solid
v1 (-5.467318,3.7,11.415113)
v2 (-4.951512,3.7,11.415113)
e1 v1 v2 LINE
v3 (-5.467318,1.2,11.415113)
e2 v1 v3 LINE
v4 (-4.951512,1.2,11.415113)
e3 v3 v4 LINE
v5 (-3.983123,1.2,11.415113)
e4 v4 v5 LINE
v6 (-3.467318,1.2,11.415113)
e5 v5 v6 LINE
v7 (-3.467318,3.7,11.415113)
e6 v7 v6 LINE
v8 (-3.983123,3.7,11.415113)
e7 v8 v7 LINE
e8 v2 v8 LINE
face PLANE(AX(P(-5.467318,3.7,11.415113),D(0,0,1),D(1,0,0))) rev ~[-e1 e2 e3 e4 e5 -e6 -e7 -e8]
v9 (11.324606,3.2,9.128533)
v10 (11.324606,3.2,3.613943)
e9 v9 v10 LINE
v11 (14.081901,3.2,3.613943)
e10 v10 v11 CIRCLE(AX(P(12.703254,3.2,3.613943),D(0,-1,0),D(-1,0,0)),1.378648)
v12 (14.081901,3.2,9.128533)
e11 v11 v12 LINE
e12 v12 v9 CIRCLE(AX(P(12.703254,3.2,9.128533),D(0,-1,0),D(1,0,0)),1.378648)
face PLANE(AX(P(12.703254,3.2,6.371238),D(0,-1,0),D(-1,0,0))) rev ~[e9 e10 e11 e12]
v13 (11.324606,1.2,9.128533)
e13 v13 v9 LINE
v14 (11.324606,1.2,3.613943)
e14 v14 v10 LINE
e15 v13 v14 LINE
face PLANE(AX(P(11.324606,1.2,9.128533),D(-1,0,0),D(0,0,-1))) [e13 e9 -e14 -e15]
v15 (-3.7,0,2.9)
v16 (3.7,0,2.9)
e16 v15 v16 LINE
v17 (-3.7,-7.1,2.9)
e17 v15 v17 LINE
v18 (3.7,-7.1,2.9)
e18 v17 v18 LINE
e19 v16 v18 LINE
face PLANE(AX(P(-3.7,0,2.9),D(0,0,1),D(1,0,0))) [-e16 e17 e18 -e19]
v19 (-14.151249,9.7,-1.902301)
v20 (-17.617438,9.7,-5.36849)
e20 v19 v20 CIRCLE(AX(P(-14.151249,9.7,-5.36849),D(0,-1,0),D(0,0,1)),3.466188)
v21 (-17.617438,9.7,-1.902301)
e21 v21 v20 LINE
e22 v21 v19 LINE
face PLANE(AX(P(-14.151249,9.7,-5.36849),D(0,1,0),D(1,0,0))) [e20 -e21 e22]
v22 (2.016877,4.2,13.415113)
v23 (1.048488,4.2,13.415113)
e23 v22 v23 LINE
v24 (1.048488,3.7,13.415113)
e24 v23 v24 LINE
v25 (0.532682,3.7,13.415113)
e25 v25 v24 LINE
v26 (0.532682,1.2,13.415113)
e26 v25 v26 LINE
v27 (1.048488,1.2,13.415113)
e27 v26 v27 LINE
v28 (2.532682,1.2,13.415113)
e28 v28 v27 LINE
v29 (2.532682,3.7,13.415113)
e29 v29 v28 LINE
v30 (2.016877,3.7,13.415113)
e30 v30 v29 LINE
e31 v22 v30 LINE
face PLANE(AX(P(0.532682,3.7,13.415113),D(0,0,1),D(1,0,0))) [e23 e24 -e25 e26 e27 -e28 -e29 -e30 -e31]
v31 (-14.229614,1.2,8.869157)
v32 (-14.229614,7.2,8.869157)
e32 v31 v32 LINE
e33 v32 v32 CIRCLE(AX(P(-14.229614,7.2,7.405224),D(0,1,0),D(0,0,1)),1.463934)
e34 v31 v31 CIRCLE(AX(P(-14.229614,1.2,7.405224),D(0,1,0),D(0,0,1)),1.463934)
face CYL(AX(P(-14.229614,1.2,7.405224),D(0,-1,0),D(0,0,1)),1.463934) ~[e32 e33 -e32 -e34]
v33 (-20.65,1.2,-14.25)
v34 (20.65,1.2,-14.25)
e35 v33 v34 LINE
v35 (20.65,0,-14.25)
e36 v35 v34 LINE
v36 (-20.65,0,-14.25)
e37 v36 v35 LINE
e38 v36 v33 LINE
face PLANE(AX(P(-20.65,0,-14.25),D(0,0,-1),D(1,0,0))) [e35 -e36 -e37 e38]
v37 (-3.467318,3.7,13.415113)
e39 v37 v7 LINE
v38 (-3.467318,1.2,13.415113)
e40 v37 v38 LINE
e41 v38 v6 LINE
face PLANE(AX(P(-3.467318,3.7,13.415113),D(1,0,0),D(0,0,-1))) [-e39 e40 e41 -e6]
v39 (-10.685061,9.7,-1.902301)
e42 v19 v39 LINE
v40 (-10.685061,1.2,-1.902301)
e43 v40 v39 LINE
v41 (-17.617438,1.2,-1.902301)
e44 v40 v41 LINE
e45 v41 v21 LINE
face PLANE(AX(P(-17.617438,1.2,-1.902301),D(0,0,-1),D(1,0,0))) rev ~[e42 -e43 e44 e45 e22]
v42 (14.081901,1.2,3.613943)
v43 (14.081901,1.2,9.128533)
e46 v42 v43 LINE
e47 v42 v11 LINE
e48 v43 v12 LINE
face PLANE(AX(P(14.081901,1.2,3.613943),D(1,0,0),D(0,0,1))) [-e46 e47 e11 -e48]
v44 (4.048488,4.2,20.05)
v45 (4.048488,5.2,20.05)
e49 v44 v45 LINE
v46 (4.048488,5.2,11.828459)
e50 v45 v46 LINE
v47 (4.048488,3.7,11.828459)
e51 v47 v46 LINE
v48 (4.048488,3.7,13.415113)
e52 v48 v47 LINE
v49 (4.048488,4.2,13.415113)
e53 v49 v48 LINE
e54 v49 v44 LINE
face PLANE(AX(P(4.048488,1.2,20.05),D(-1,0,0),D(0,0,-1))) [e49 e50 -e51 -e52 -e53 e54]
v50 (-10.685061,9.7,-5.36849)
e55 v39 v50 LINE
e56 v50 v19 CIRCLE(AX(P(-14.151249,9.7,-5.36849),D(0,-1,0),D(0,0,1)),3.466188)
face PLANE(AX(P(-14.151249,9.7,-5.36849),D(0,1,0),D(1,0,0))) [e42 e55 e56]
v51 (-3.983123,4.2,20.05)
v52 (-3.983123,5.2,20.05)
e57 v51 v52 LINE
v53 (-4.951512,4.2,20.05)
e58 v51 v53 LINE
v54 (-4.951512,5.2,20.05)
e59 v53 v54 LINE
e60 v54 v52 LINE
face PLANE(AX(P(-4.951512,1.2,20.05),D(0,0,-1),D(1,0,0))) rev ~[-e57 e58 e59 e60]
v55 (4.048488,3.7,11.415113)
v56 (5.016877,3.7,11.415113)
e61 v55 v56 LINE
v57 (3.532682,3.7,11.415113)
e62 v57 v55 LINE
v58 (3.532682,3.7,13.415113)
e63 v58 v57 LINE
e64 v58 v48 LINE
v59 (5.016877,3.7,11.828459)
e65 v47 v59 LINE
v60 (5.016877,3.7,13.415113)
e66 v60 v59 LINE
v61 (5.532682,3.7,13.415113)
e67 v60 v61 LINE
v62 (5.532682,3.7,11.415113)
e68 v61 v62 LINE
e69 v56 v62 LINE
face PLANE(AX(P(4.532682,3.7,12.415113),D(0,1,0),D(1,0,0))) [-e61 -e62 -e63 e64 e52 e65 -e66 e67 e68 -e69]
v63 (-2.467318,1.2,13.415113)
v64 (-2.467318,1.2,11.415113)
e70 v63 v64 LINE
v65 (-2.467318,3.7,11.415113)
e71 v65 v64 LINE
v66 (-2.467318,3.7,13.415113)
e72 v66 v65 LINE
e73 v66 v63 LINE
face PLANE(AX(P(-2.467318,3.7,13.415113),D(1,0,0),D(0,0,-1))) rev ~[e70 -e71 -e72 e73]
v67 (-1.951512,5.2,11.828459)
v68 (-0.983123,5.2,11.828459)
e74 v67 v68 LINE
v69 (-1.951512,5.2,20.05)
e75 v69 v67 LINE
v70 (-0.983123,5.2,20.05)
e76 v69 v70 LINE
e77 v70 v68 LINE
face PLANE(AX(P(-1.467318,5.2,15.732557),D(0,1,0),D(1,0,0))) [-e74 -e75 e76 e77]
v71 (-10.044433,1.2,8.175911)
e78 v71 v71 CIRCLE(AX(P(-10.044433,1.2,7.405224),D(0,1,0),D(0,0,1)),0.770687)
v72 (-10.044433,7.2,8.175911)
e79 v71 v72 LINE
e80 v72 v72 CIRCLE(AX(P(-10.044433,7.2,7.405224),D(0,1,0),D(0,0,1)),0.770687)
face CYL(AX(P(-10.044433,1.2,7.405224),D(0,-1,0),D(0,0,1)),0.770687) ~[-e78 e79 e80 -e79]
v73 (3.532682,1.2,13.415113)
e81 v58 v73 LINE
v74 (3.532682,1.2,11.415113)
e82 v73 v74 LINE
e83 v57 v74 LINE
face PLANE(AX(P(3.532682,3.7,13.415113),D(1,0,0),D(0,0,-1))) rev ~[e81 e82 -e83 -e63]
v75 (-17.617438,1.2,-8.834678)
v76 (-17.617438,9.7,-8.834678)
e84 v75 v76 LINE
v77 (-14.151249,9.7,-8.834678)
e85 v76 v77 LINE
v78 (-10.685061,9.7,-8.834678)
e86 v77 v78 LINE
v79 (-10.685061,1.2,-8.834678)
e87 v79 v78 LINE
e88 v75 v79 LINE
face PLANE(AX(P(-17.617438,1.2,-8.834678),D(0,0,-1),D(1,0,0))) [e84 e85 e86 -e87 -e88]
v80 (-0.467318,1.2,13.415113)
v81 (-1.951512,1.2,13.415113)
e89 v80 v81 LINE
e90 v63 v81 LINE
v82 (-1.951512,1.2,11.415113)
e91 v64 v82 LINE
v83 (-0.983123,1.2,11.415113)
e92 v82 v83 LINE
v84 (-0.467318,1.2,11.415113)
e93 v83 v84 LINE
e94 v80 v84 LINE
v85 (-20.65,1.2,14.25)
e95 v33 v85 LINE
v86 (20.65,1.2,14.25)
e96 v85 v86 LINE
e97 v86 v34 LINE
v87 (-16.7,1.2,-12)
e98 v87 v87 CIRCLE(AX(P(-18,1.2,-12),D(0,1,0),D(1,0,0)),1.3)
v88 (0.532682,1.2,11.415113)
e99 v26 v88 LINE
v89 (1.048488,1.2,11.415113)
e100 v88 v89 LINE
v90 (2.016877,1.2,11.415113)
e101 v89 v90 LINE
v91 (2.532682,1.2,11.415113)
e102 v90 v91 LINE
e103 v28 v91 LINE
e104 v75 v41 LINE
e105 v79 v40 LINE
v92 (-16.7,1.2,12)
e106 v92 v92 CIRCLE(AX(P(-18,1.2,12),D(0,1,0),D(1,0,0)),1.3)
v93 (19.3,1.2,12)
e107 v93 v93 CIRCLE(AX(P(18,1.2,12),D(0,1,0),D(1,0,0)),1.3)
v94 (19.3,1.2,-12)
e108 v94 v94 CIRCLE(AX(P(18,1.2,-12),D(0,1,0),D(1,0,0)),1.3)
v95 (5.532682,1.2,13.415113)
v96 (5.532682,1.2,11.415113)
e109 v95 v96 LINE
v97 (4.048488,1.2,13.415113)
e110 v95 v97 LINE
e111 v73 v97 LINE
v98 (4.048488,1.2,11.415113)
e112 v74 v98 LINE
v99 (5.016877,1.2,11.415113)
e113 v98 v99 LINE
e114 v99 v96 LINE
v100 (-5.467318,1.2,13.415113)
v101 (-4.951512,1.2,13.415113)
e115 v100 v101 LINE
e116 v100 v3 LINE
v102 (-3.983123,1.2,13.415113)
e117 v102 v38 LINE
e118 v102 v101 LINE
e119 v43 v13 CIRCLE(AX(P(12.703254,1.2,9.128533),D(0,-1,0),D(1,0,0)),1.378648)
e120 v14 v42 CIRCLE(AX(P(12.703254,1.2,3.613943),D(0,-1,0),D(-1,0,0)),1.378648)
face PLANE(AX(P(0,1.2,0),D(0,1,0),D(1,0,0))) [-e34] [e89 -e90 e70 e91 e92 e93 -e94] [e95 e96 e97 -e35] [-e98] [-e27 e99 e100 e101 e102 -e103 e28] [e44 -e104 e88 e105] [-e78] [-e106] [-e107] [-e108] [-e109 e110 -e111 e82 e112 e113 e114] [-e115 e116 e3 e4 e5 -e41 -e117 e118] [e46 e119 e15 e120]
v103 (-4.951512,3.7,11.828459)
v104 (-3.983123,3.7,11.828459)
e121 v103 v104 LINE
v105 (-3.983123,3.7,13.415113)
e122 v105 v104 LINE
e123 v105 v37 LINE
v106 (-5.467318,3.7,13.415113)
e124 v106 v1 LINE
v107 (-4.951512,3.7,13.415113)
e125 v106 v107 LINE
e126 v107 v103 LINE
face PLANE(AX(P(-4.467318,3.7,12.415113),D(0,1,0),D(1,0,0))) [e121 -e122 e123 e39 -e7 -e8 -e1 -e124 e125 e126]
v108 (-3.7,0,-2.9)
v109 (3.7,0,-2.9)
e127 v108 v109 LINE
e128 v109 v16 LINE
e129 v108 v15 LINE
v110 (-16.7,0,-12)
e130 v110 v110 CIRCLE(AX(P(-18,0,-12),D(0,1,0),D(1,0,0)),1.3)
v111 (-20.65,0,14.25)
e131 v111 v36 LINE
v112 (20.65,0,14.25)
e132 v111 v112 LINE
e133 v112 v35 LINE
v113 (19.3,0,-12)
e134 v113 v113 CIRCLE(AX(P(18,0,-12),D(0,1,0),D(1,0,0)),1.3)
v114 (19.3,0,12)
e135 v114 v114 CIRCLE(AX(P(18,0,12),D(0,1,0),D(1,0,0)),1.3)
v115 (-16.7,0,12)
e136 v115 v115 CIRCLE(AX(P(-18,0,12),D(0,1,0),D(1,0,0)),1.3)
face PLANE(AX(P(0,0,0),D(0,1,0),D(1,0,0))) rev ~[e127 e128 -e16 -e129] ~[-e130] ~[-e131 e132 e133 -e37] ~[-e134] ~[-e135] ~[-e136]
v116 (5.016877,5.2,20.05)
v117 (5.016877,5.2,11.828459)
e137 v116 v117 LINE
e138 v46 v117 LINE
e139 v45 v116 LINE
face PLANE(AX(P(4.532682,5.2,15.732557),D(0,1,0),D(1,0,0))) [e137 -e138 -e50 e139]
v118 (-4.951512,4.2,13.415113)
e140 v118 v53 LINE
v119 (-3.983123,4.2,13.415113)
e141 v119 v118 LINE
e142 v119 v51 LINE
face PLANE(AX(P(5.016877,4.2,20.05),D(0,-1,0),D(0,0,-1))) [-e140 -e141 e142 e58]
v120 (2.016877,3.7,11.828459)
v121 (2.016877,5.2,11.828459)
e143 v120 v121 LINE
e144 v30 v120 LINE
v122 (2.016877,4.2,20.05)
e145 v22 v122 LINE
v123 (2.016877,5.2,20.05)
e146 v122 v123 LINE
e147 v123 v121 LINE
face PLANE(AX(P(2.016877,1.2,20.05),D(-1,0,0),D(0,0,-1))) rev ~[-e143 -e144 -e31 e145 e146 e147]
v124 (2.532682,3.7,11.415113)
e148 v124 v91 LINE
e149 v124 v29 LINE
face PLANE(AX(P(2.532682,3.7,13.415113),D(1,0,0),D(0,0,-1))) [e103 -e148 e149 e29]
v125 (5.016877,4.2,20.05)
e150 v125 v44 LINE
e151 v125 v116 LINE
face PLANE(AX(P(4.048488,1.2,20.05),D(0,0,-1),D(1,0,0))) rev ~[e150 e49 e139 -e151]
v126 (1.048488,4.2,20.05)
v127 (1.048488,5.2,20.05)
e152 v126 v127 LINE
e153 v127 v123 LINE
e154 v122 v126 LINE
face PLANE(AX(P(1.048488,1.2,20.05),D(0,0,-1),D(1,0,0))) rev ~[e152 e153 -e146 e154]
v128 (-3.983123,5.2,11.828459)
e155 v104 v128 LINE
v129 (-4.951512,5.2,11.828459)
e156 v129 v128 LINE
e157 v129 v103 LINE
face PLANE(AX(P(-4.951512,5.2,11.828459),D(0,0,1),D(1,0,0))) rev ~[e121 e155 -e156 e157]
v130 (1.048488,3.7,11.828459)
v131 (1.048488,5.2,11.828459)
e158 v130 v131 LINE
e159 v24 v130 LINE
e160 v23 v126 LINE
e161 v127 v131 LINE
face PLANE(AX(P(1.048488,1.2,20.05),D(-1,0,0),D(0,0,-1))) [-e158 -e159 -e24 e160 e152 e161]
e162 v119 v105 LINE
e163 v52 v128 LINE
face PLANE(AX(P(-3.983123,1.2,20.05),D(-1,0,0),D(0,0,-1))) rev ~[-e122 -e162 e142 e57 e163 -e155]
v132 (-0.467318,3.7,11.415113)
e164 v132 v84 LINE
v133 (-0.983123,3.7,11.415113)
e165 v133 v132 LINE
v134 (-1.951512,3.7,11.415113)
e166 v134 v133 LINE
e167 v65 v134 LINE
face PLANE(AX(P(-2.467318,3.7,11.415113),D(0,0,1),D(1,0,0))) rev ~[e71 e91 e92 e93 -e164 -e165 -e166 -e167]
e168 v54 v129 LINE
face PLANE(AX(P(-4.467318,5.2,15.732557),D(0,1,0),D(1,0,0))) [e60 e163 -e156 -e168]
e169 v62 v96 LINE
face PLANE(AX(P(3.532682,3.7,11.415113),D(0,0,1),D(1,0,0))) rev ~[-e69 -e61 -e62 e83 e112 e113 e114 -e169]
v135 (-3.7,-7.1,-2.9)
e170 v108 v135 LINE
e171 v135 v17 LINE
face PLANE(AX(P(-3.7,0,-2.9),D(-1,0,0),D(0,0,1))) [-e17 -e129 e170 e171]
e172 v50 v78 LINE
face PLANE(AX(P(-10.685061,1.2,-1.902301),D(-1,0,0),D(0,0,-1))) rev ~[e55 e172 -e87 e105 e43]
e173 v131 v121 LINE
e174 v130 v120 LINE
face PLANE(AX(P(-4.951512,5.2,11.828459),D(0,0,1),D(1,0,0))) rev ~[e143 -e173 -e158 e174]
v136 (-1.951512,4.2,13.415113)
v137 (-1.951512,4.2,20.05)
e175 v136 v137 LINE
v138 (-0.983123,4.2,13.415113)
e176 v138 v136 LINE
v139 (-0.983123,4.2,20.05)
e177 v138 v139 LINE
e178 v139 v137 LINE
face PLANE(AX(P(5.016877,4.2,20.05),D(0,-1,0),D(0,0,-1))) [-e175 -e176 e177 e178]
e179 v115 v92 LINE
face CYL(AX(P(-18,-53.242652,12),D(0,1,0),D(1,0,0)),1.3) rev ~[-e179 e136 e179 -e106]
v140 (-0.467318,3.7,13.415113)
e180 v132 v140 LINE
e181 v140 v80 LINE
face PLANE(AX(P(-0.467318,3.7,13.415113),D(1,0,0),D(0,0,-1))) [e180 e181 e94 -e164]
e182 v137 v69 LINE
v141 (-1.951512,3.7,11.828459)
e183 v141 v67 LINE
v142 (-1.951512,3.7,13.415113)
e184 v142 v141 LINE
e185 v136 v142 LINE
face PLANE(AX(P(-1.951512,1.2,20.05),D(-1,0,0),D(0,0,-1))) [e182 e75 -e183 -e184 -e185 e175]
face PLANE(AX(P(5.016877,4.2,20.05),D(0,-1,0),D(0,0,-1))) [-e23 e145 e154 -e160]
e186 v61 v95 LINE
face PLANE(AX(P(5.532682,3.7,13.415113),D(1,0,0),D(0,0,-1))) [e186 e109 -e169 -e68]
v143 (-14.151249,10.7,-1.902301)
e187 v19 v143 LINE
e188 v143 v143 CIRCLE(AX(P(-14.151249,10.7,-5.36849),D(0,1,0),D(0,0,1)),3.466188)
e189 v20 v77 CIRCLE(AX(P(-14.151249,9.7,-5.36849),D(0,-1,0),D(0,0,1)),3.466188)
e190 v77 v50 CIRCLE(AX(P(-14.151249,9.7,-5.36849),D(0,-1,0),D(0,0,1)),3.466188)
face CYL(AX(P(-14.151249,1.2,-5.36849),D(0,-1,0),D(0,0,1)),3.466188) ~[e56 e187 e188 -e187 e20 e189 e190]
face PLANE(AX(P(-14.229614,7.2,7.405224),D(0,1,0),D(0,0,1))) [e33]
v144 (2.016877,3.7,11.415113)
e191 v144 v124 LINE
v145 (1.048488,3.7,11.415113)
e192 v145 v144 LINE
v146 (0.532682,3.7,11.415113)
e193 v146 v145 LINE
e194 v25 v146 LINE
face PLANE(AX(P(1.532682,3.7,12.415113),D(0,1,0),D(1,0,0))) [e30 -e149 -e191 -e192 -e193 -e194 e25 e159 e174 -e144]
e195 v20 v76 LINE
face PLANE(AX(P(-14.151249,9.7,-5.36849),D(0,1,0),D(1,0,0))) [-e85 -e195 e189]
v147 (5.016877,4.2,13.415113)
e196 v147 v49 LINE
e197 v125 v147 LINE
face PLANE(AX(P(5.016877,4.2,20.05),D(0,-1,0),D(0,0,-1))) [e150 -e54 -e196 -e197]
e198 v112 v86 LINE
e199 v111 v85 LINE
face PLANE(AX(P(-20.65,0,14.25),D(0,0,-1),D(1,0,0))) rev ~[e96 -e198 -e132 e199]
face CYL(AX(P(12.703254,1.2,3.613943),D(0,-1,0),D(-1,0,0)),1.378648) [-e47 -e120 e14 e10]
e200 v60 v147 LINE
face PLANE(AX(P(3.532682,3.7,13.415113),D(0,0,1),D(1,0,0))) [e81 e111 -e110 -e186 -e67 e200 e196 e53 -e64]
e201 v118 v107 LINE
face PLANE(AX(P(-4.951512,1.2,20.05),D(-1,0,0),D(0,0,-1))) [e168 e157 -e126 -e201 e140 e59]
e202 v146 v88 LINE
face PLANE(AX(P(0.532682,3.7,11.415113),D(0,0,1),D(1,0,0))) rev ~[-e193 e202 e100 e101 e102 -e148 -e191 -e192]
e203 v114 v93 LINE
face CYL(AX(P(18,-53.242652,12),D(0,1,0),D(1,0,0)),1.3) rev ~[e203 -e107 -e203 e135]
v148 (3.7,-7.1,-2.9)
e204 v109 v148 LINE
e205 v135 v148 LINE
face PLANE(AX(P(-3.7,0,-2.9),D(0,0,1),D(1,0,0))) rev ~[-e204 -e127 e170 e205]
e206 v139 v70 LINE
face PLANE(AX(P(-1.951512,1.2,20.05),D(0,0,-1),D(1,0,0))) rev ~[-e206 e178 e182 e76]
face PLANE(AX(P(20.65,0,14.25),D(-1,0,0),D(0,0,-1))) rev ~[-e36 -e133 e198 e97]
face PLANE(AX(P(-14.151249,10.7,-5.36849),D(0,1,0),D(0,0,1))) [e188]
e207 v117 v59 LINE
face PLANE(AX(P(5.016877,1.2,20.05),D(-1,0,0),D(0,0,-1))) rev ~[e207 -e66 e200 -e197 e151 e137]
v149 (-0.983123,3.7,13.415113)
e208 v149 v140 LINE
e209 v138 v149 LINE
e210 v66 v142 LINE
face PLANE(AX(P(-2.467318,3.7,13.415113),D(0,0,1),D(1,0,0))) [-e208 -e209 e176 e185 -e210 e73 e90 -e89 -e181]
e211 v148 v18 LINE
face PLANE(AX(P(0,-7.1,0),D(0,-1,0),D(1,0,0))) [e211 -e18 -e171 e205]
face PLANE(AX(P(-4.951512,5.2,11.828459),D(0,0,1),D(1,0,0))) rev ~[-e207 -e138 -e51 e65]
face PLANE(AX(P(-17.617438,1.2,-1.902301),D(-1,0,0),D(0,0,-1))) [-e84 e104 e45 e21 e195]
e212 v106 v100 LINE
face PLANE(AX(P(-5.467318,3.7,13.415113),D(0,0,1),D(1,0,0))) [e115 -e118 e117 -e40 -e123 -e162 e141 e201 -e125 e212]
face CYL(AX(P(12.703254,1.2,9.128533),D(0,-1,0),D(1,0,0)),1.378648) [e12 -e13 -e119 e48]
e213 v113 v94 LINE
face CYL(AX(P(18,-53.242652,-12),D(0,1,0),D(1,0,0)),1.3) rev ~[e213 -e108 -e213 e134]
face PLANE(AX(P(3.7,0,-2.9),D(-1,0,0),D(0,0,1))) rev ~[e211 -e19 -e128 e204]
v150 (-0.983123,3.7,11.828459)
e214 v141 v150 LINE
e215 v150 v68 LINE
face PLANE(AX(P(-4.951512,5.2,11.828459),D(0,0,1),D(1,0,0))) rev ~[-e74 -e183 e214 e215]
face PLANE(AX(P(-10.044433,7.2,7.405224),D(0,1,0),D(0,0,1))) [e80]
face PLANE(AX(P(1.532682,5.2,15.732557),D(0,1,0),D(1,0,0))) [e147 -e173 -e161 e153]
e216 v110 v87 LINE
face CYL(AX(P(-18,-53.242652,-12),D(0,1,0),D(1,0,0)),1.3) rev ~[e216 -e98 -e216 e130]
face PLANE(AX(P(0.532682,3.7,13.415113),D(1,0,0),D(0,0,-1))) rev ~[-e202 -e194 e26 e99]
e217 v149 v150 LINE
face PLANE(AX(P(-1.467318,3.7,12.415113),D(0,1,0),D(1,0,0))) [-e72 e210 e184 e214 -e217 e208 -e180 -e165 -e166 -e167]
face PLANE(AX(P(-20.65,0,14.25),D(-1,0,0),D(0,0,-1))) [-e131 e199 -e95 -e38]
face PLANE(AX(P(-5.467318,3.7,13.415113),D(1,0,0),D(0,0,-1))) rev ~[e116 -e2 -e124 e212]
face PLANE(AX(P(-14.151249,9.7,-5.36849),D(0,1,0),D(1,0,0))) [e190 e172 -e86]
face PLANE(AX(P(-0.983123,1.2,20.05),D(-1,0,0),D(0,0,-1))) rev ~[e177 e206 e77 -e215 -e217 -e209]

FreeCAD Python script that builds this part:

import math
import FreeCAD as App
import Part
import Sketcher

V = App.Vector
Q = App.Units.Quantity

doc = App.newDocument("Part")
body = doc.addObject("PartDesign::Body", "Body")

# Sketch on XZ plane
sketch1 = doc.addObject("Sketcher::SketchObject", "Sketch")
body.addObject(sketch1)
sketch1.AttachmentSupport = (doc.XZ_Plane, [""])
sketch1.MapMode = "FlatFace"
sketch1.addGeometry(Part.LineSegment(V(-21, -14, 0), V(-21, 14, 0)), False)
sketch1.addGeometry(Part.LineSegment(V(-21, 14, 0), V(21, 14, 0)), False)
sketch1.addGeometry(Part.LineSegment(V(21, 14, 0), V(21, -14, 0)), False)
sketch1.addGeometry(Part.LineSegment(V(21, -14, 0), V(-21, -14, 0)), False)
sketch1.addConstraint(Sketcher.Constraint("Coincident", 0, 2, 1, 1))
sketch1.addConstraint(Sketcher.Constraint("Coincident", 1, 2, 2, 1))
sketch1.addConstraint(Sketcher.Constraint("Coincident", 2, 2, 3, 1))
sketch1.addConstraint(Sketcher.Constraint("Coincident", 3, 2, 0, 1))
sketch1.addConstraint(Sketcher.Constraint("Vertical", 0))
sketch1.addConstraint(Sketcher.Constraint("Horizontal", 1))
sketch1.addConstraint(Sketcher.Constraint("Vertical", 2))
sketch1.addConstraint(Sketcher.Constraint("Horizontal", 3))
sketch1.addConstraint(Sketcher.Constraint("Symmetric", 0, 2, 2, 2, -1, 1))
sketch1.addConstraint(Sketcher.Constraint("DistanceX", 1, 1, 1, 2, Q("41.3 mm")))
sketch1.addConstraint(Sketcher.Constraint("DistanceY", 0, 1, 0, 2, Q("28.5 mm")))
pad1 = doc.addObject("PartDesign::Pad", "Pad")
body.addObject(pad1)
pad1.Profile = sketch1
pad1.Length = 1.2
pad1.Reversed = True

# Sketch on XZ plane
sketch2 = doc.addObject("Sketcher::SketchObject", "Sketch001")
body.addObject(sketch2)
sketch2.AttachmentSupport = (doc.XZ_Plane, [""])
sketch2.MapMode = "FlatFace"
sketch2.AttachmentOffset = App.Placement(V(0, 0, -1.2), App.Rotation())
sketch2.addGeometry(Part.Circle(V(-14.2, -5.4, 0), V(0, 0, 1), 3.5), False)
sketch2.addConstraint(Sketcher.Constraint("Diameter", 0, Q("6.932377 mm")))
sketch2.addConstraint(Sketcher.Constraint("DistanceX", 0, 3, -1, 1, Q("14.151249 mm")))
sketch2.addConstraint(Sketcher.Constraint("DistanceY", 0, 3, -1, 1, Q("5.36849 mm")))
pad2 = doc.addObject("PartDesign::Pad", "Pad001")
body.addObject(pad2)
pad2.Profile = sketch2
pad2.Length = 9.5
pad2.Reversed = True

# Sketch on XZ plane
sketch3 = doc.addObject("Sketcher::SketchObject", "Sketch002")
body.addObject(sketch3)
sketch3.AttachmentSupport = (doc.XZ_Plane, [""])
sketch3.MapMode = "FlatFace"
sketch3.addGeometry(Part.LineSegment(V(-4, 3, 0), V(-4, -3, 0)), False)
sketch3.addGeometry(Part.LineSegment(V(-4, -3, 0), V(4, -3, 0)), False)
sketch3.addGeometry(Part.LineSegment(V(4, -3, 0), V(4, 3, 0)), False)
sketch3.addGeometry(Part.LineSegment(V(4, 3, 0), V(-4, 3, 0)), False)
sketch3.addConstraint(Sketcher.Constraint("Coincident", 0, 2, 1, 1))
sketch3.addConstraint(Sketcher.Constraint("Coincident", 1, 2, 2, 1))
sketch3.addConstraint(Sketcher.Constraint("Coincident", 2, 2, 3, 1))
sketch3.addConstraint(Sketcher.Constraint("Coincident", 3, 2, 0, 1))
sketch3.addConstraint(Sketcher.Constraint("Vertical", 0))
sketch3.addConstraint(Sketcher.Constraint("Horizontal", 1))
sketch3.addConstraint(Sketcher.Constraint("Vertical", 2))
sketch3.addConstraint(Sketcher.Constraint("Horizontal", 3))
sketch3.addConstraint(Sketcher.Constraint("Symmetric", 0, 2, 2, 2, -1, 1))
sketch3.addConstraint(Sketcher.Constraint("DistanceX", 1, 1, 1, 2, Q("7.4 mm")))
sketch3.addConstraint(Sketcher.Constraint("DistanceY", 0, 2, 0, 1, Q("5.8 mm")))
pad3 = doc.addObject("PartDesign::Pad", "Pad002")
body.addObject(pad3)
pad3.Profile = sketch3
pad3.Length = 7.1

# Sketch on XZ plane
sketch4 = doc.addObject("Sketcher::SketchObject", "Sketch003")
body.addObject(sketch4)
sketch4.AttachmentSupport = (doc.XZ_Plane, [""])
sketch4.MapMode = "FlatFace"
sketch4.addGeometry(Part.Circle(V(-18, 12, 0), V(0, 0, 1), 1.3), False)
sketch4.addGeometry(Part.Circle(V(18, 12, 0), V(0, 0, 1), 1.3), False)
sketch4.addGeometry(Part.Circle(V(18, -12, 0), V(0, 0, 1), 1.3), False)
sketch4.addGeometry(Part.Circle(V(-18, -12, 0), V(0, 0, 1), 1.3), False)
sketch4.addConstraint(Sketcher.Constraint("Equal", 0, 1))
sketch4.addConstraint(Sketcher.Constraint("Equal", 1, 2))
sketch4.addConstraint(Sketcher.Constraint("Equal", 2, 3))
sketch4.addConstraint(Sketcher.Constraint("Symmetric", 0, 3, 2, 3, -1, 1))
sketch4.addConstraint(Sketcher.Constraint("Symmetric", 1, 3, 3, 3, -1, 1))
sketch4.addConstraint(Sketcher.Constraint("Symmetric", 0, 3, 1, 3, -2))
sketch4.addConstraint(Sketcher.Constraint("Diameter", 0, Q("2.6 mm")))
sketch4.addConstraint(Sketcher.Constraint("DistanceX", 0, 3, -1, 1, Q("18 mm")))
sketch4.addConstraint(Sketcher.Constraint("DistanceY", -1, 1, 0, 3, Q("12 mm")))
doc.recompute()
hole = doc.addObject("PartDesign::Hole", "Hole")
body.addObject(hole)
hole.Profile = sketch4
hole.ThreadType = "None"
hole.Diameter = 2.6
hole.DepthType = "ThroughAll"

# Sketch on XZ plane
sketch5 = doc.addObject("Sketcher::SketchObject", "Sketch004")
body.addObject(sketch5)
sketch5.AttachmentSupport = (doc.XZ_Plane, [""])
sketch5.MapMode = "FlatFace"
sketch5.AttachmentOffset = App.Placement(V(0, 0, -1.2), App.Rotation())
sketch5.addGeometry(Part.LineSegment(V(-5, 11.4, 0), V(-5, 20.1, 0)), False)
sketch5.addGeometry(Part.LineSegment(V(-5, 20.1, 0), V(-4, 20.1, 0)), False)
sketch5.addGeometry(Part.LineSegment(V(-4, 20.1, 0), V(-4, 11.4, 0)), False)
sketch5.addGeometry(Part.LineSegment(V(-4, 11.4, 0), V(-5, 11.4, 0)), False)
sketch5.addGeometry(Part.LineSegment(V(-2, 11.4, 0), V(-2, 20.1, 0)), False)
sketch5.addGeometry(Part.LineSegment(V(-2, 20.1, 0), V(-1, 20.1, 0)), False)
sketch5.addGeometry(Part.LineSegment(V(-1, 20.1, 0), V(-1, 11.4, 0)), False)
sketch5.addGeometry(Part.LineSegment(V(-1, 11.4, 0), V(-2, 11.4, 0)), False)
sketch5.addGeometry(Part.LineSegment(V(1, 11.4, 0), V(1, 20.1, 0)), False)
sketch5.addGeometry(Part.LineSegment(V(1, 20.1, 0), V(2, 20.1, 0)), False)
sketch5.addGeometry(Part.LineSegment(V(2, 20.1, 0), V(2, 11.4, 0)), False)
sketch5.addGeometry(Part.LineSegment(V(2, 11.4, 0), V(1, 11.4, 0)), False)
sketch5.addGeometry(Part.LineSegment(V(4, 11.4, 0), V(4, 20.1, 0)), False)
sketch5.addGeometry(Part.LineSegment(V(4, 20.1, 0), V(5, 20.1, 0)), False)
sketch5.addGeometry(Part.LineSegment(V(5, 20.1, 0), V(5, 11.4, 0)), False)
sketch5.addGeometry(Part.LineSegment(V(5, 11.4, 0), V(4, 11.4, 0)), False)
sketch5.addConstraint(Sketcher.Constraint("Coincident", 0, 2, 1, 1))
sketch5.addConstraint(Sketcher.Constraint("Coincident", 1, 2, 2, 1))
sketch5.addConstraint(Sketcher.Constraint("Coincident", 2, 2, 3, 1))
sketch5.addConstraint(Sketcher.Constraint("Coincident", 3, 2, 0, 1))
sketch5.addConstraint(Sketcher.Constraint("Coincident", 4, 2, 5, 1))
sketch5.addConstraint(Sketcher.Constraint("Coincident", 5, 2, 6, 1))
sketch5.addConstraint(Sketcher.Constraint("Coincident", 6, 2, 7, 1))
sketch5.addConstraint(Sketcher.Constraint("Coincident", 7, 2, 4, 1))
sketch5.addConstraint(Sketcher.Constraint("Coincident", 8, 2, 9, 1))
sketch5.addConstraint(Sketcher.Constraint("Coincident", 9, 2, 10, 1))
sketch5.addConstraint(Sketcher.Constraint("Coincident", 10, 2, 11, 1))
sketch5.addConstraint(Sketcher.Constraint("Coincident", 11, 2, 8, 1))
sketch5.addConstraint(Sketcher.Constraint("Coincident", 12, 2, 13, 1))
sketch5.addConstraint(Sketcher.Constraint("Coincident", 13, 2, 14, 1))
sketch5.addConstraint(Sketcher.Constraint("Coincident", 14, 2, 15, 1))
sketch5.addConstraint(Sketcher.Constraint("Coincident", 15, 2, 12, 1))
sketch5.addConstraint(Sketcher.Constraint("Vertical", 0))
sketch5.addConstraint(Sketcher.Constraint("Horizontal", 1))
sketch5.addConstraint(Sketcher.Constraint("Vertical", 2))
sketch5.addConstraint(Sketcher.Constraint("Horizontal", 3))
sketch5.addConstraint(Sketcher.Constraint("Vertical", 4))
sketch5.addConstraint(Sketcher.Constraint("Horizontal", 5))
sketch5.addConstraint(Sketcher.Constraint("Vertical", 6))
sketch5.addConstraint(Sketcher.Constraint("Horizontal", 7))
sketch5.addConstraint(Sketcher.Constraint("Vertical", 8))
sketch5.addConstraint(Sketcher.Constraint("Horizontal", 9))
sketch5.addConstraint(Sketcher.Constraint("Vertical", 10))
sketch5.addConstraint(Sketcher.Constraint("Horizontal", 11))
sketch5.addConstraint(Sketcher.Constraint("Vertical", 12))
sketch5.addConstraint(Sketcher.Constraint("Horizontal", 13))
sketch5.addConstraint(Sketcher.Constraint("Vertical", 14))
sketch5.addConstraint(Sketcher.Constraint("Horizontal", 15))
sketch5.addConstraint(Sketcher.Constraint("Horizontal", 1, 2, 4, 2))
sketch5.addConstraint(Sketcher.Constraint("Horizontal", 3, 2, 6, 2))
sketch5.addConstraint(Sketcher.Constraint("Horizontal", 5, 2, 8, 2))
sketch5.addConstraint(Sketcher.Constraint("Horizontal", 7, 2, 10, 2))
sketch5.addConstraint(Sketcher.Constraint("Horizontal", 9, 2, 12, 2))
sketch5.addConstraint(Sketcher.Constraint("Horizontal", 11, 2, 14, 2))
sketch5.addConstraint(Sketcher.Constraint("Equal", 3, 5))
sketch5.addConstraint(Sketcher.Constraint("Equal", 7, 9))
sketch5.addConstraint(Sketcher.Constraint("Equal", 11, 13))
sketch5.addConstraint(Sketcher.Constraint("DistanceX", 0, 2, 4, 2, Q("3 mm")))
sketch5.addConstraint(Sketcher.Constraint("DistanceX", 4, 2, 8, 2, Q("3 mm")))
sketch5.addConstraint(Sketcher.Constraint("DistanceX", 8, 2, 12, 2, Q("3 mm")))
sketch5.addConstraint(Sketcher.Constraint("DistanceY", -1, 1, 0, 2, Q("20.05 mm")))
sketch5.addConstraint(Sketcher.Constraint("DistanceX", 1, 1, 1, 2, Q("0.968389 mm")))
sketch5.addConstraint(Sketcher.Constraint("DistanceY", 0, 1, 0, 2, Q("8.634887 mm")))
sketch5.addConstraint(Sketcher.Constraint("DistanceX", 0, 2, -1, 1, Q("4.951512 mm")))
pad4 = doc.addObject("PartDesign::Pad", "Pad003")
body.addObject(pad4)
pad4.Profile = sketch5
pad4.Length = 4
pad4.Reversed = True

# Sketch on YZ plane
sketch6 = doc.addObject("Sketcher::SketchObject", "Sketch005")
body.addObject(sketch6)
sketch6.AttachmentSupport = (doc.YZ_Plane, [""])
sketch6.MapMode = "FlatFace"
sketch6.AttachmentOffset = App.Placement(V(0, 0, 5.016877), App.Rotation())
sketch6.addGeometry(Part.LineSegment(V(4.2, 20.1, 0), V(1.2, 20.1, 0)), False)
sketch6.addGeometry(Part.LineSegment(V(1.2, 20.1, 0), V(1.2, 13.4, 0)), False)
sketch6.addGeometry(Part.LineSegment(V(1.2, 13.4, 0), V(4.2, 13.4, 0)), False)
sketch6.addGeometry(Part.LineSegment(V(4.2, 13.4, 0), V(4.2, 20.1, 0)), False)
sketch6.addConstraint(Sketcher.Constraint("Coincident", 0, 2, 1, 1))
sketch6.addConstraint(Sketcher.Constraint("Coincident", 1, 2, 2, 1))
sketch6.addConstraint(Sketcher.Constraint("Coincident", 2, 2, 3, 1))
sketch6.addConstraint(Sketcher.Constraint("Coincident", 3, 2, 0, 1))
sketch6.addConstraint(Sketcher.Constraint("Horizontal", 0))
sketch6.addConstraint(Sketcher.Constraint("Vertical", 1))
sketch6.addConstraint(Sketcher.Constraint("Horizontal", 2))
sketch6.addConstraint(Sketcher.Constraint("Vertical", 3))
sketch6.addConstraint(Sketcher.Constraint("DistanceX", 0, 2, 0, 1, Q("3 mm")))
sketch6.addConstraint(Sketcher.Constraint("DistanceX", -1, 1, 0, 2, Q("1.2 mm")))
sketch6.addConstraint(Sketcher.Constraint("DistanceY", -1, 1, 0, 2, Q("20.05 mm")))
sketch6.addConstraint(Sketcher.Constraint("DistanceY", 1, 2, 1, 1, Q("6.634887 mm")))
pocket1 = doc.addObject("PartDesign::Pocket", "Pocket")
body.addObject(pocket1)
pocket1.Profile = sketch6
pocket1.Type = "ThroughAll"

# Sketch on XZ plane
sketch7 = doc.addObject("Sketcher::SketchObject", "Sketch006")
body.addObject(sketch7)
sketch7.AttachmentSupport = (doc.XZ_Plane, [""])
sketch7.MapMode = "FlatFace"
sketch7.AttachmentOffset = App.Placement(V(0, 0, -1.2), App.Rotation())
sketch7.addGeometry(Part.LineSegment(V(-18, -9, 0), V(-18, -2, 0)), False)
sketch7.addGeometry(Part.LineSegment(V(-18, -2, 0), V(-11, -2, 0)), False)
sketch7.addGeometry(Part.LineSegment(V(-11, -2, 0), V(-11, -9, 0)), False)
sketch7.addGeometry(Part.LineSegment(V(-11, -9, 0), V(-18, -9, 0)), False)
sketch7.addConstraint(Sketcher.Constraint("Coincident", 0, 2, 1, 1))
sketch7.addConstraint(Sketcher.Constraint("Coincident", 1, 2, 2, 1))
sketch7.addConstraint(Sketcher.Constraint("Coincident", 2, 2, 3, 1))
sketch7.addConstraint(Sketcher.Constraint("Coincident", 3, 2, 0, 1))
sketch7.addConstraint(Sketcher.Constraint("Vertical", 0))
sketch7.addConstraint(Sketcher.Constraint("Horizontal", 1))
sketch7.addConstraint(Sketcher.Constraint("Vertical", 2))
sketch7.addConstraint(Sketcher.Constraint("Horizontal", 3))
sketch7.addConstraint(Sketcher.Constraint("Equal", 3, 0))
sketch7.addConstraint(Sketcher.Constraint("DistanceY", 0, 2, -1, 1, Q("1.902301 mm")))
sketch7.addConstraint(Sketcher.Constraint("DistanceX", 1, 1, 1, 2, Q("6.932377 mm")))
sketch7.addConstraint(Sketcher.Constraint("DistanceX", 1, 2, -1, 1, Q("10.685061 mm")))
pad5 = doc.addObject("PartDesign::Pad", "Pad004")
body.addObject(pad5)
pad5.Profile = sketch7
pad5.Length = 8.5
pad5.Reversed = True

# Sketch on XZ plane
sketch8 = doc.addObject("Sketcher::SketchObject", "Sketch007")
body.addObject(sketch8)
sketch8.AttachmentSupport = (doc.XZ_Plane, [""])
sketch8.MapMode = "FlatFace"
sketch8.AttachmentOffset = App.Placement(V(0, 0, -1.2), App.Rotation())
sketch8.addGeometry(Part.Circle(V(-14.2, 7.4, 0), V(0, 0, 1), 1.5), False)
sketch8.addGeometry(Part.Circle(V(-10, 7.4, 0), V(0, 0, 1), 0.8), False)
sketch8.addConstraint(Sketcher.Constraint("Horizontal", 0, 3, 1, 3))
sketch8.addConstraint(Sketcher.Constraint("Diameter", 0, Q("2.927867 mm")))
sketch8.addConstraint(Sketcher.Constraint("Diameter", 1, Q("1.541375 mm")))
sketch8.addConstraint(Sketcher.Constraint("DistanceX", 0, 3, 1, 3, Q("4.185181 mm")))
sketch8.addConstraint(Sketcher.Constraint("DistanceX", 0, 3, -1, 1, Q("14.229614 mm")))
sketch8.addConstraint(Sketcher.Constraint("DistanceY", -1, 1, 0, 3, Q("7.405224 mm")))
pad6 = doc.addObject("PartDesign::Pad", "Pad005")
body.addObject(pad6)
pad6.Profile = sketch8
pad6.Length = 6
pad6.Reversed = True

# Sketch on XZ plane
sketch9 = doc.addObject("Sketcher::SketchObject", "Sketch008")
body.addObject(sketch9)
sketch9.AttachmentSupport = (doc.XZ_Plane, [""])
sketch9.MapMode = "FlatFace"
sketch9.AttachmentOffset = App.Placement(V(0, 0, -1.2), App.Rotation())
sketch9.addGeometry(Part.LineSegment(V(14.1, 9.1, 0), V(14.1, 3.6, 0)), False)
sketch9.addGeometry(Part.ArcOfCircle(Part.Circle(V(12.7, 3.6, 0), V(0, 0, 1), 1.4), math.radians(180), math.radians(360)), False)
sketch9.addGeometry(Part.LineSegment(V(11.3, 3.6, 0), V(11.3, 9.1, 0)), False)
sketch9.addGeometry(Part.ArcOfCircle(Part.Circle(V(12.7, 9.1, 0), V(0, 0, 1), 1.4), math.radians(0), math.radians(180)), False)
sketch9.addConstraint(Sketcher.Constraint("Tangent", 0, 2, 1, 2))
sketch9.addConstraint(Sketcher.Constraint("Tangent", 1, 1, 2, 1))
sketch9.addConstraint(Sketcher.Constraint("Tangent", 2, 2, 3, 2))
sketch9.addConstraint(Sketcher.Constraint("Tangent", 3, 1, 0, 1))
sketch9.addConstraint(Sketcher.Constraint("Vertical", 0))
sketch9.addConstraint(Sketcher.Constraint("Vertical", 2))
sketch9.addConstraint(Sketcher.Constraint("Radius", 1, Q("1.378648 mm")))
sketch9.addConstraint(Sketcher.Constraint("DistanceY", 0, 2, 0, 1, Q("5.514591 mm")))
sketch9.addConstraint(Sketcher.Constraint("DistanceX", -1, 1, 0, 2, Q("14.081901 mm")))
sketch9.addConstraint(Sketcher.Constraint("DistanceY", -1, 1, 1, 3, Q("3.613943 mm")))
pad7 = doc.addObject("PartDesign::Pad", "Pad006")
body.addObject(pad7)
pad7.Profile = sketch9
pad7.Length = 2
pad7.Reversed = True

# Sketch on XZ plane
sketch10 = doc.addObject("Sketcher::SketchObject", "Sketch009")
body.addObject(sketch10)
sketch10.AttachmentSupport = (doc.XZ_Plane, [""])
sketch10.MapMode = "FlatFace"
sketch10.AttachmentOffset = App.Placement(V(0, 0, -3.7), App.Rotation())
sketch10.addGeometry(Part.LineSegment(V(-5.5, 11.4, 0), V(-5.5, 13.4, 0)), False)
sketch10.addGeometry(Part.LineSegment(V(-5.5, 13.4, 0), V(-3.5, 13.4, 0)), False)
sketch10.addGeometry(Part.LineSegment(V(-3.5, 13.4, 0), V(-3.5, 11.4, 0)), False)
sketch10.addGeometry(Part.LineSegment(V(-3.5, 11.4, 0), V(-5.5, 11.4, 0)), False)
sketch10.addGeometry(Part.LineSegment(V(-2.5, 11.4, 0), V(-2.5, 13.4, 0)), False)
sketch10.addGeometry(Part.LineSegment(V(-2.5, 13.4, 0), V(-0.5, 13.4, 0)), False)
sketch10.addGeometry(Part.LineSegment(V(-0.5, 13.4, 0), V(-0.5, 11.4, 0)), False)
sketch10.addGeometry(Part.LineSegment(V(-0.5, 11.4, 0), V(-2.5, 11.4, 0)), False)
sketch10.addGeometry(Part.LineSegment(V(3.5, 11.4, 0), V(3.5, 13.4, 0)), False)
sketch10.addGeometry(Part.LineSegment(V(3.5, 13.4, 0), V(5.5, 13.4, 0)), False)
sketch10.addGeometry(Part.LineSegment(V(5.5, 13.4, 0), V(5.5, 11.4, 0)), False)
sketch10.addGeometry(Part.LineSegment(V(5.5, 11.4, 0), V(3.5, 11.4, 0)), False)
sketch10.addGeometry(Part.LineSegment(V(0.5, 11.4, 0), V(0.5, 13.4, 0)), False)
sketch10.addGeometry(Part.LineSegment(V(0.5, 13.4, 0), V(2.5, 13.4, 0)), False)
sketch10.addGeometry(Part.LineSegment(V(2.5, 13.4, 0), V(2.5, 11.4, 0)), False)
sketch10.addGeometry(Part.LineSegment(V(2.5, 11.4, 0), V(0.5, 11.4, 0)), False)
sketch10.addConstraint(Sketcher.Constraint("Coincident", 0, 2, 1, 1))
sketch10.addConstraint(Sketcher.Constraint("Coincident", 1, 2, 2, 1))
sketch10.addConstraint(Sketcher.Constraint("Coincident", 2, 2, 3, 1))
sketch10.addConstraint(Sketcher.Constraint("Coincident", 3, 2, 0, 1))
sketch10.addConstraint(Sketcher.Constraint("Coincident", 4, 2, 5, 1))
sketch10.addConstraint(Sketcher.Constraint("Coincident", 5, 2, 6, 1))
sketch10.addConstraint(Sketcher.Constraint("Coincident", 6, 2, 7, 1))
sketch10.addConstraint(Sketcher.Constraint("Coincident", 7, 2, 4, 1))
sketch10.addConstraint(Sketcher.Constraint("Coincident", 8, 2, 9, 1))
sketch10.addConstraint(Sketcher.Constraint("Coincident", 9, 2, 10, 1))
sketch10.addConstraint(Sketcher.Constraint("Coincident", 10, 2, 11, 1))
sketch10.addConstraint(Sketcher.Constraint("Coincident", 11, 2, 8, 1))
sketch10.addConstraint(Sketcher.Constraint("Coincident", 12, 2, 13, 1))
sketch10.addConstraint(Sketcher.Constraint("Coincident", 13, 2, 14, 1))
sketch10.addConstraint(Sketcher.Constraint("Coincident", 14, 2, 15, 1))
sketch10.addConstraint(Sketcher.Constraint("Coincident", 15, 2, 12, 1))
sketch10.addConstraint(Sketcher.Constraint("Vertical", 0))
sketch10.addConstraint(Sketcher.Constraint("Horizontal", 1))
sketch10.addConstraint(Sketcher.Constraint("Vertical", 2))
sketch10.addConstraint(Sketcher.Constraint("Horizontal", 3))
sketch10.addConstraint(Sketcher.Constraint("Vertical", 4))
sketch10.addConstraint(Sketcher.Constraint("Horizontal", 5))
sketch10.addConstraint(Sketcher.Constraint("Vertical", 6))
sketch10.addConstraint(Sketcher.Constraint("Horizontal", 7))
sketch10.addConstraint(Sketcher.Constraint("Vertical", 8))
sketch10.addConstraint(Sketcher.Constraint("Horizontal", 9))
sketch10.addConstraint(Sketcher.Constraint("Vertical", 10))
sketch10.addConstraint(Sketcher.Constraint("Horizontal", 11))
sketch10.addConstraint(Sketcher.Constraint("Vertical", 12))
sketch10.addConstraint(Sketcher.Constraint("Horizontal", 13))
sketch10.addConstraint(Sketcher.Constraint("Vertical", 14))
sketch10.addConstraint(Sketcher.Constraint("Horizontal", 15))
sketch10.addConstraint(Sketcher.Constraint("Horizontal", 1, 2, 4, 2))
sketch10.addConstraint(Sketcher.Constraint("Horizontal", 3, 2, 6, 2))
sketch10.addConstraint(Sketcher.Constraint("Horizontal", 5, 2, 8, 2))
sketch10.addConstraint(Sketcher.Constraint("Horizontal", 7, 2, 10, 2))
sketch10.addConstraint(Sketcher.Constraint("Horizontal", 9, 2, 12, 2))
sketch10.addConstraint(Sketcher.Constraint("Horizontal", 11, 2, 14, 2))
sketch10.addConstraint(Sketcher.Constraint("Equal", 3, 5))
sketch10.addConstraint(Sketcher.Constraint("Equal", 7, 9))
sketch10.addConstraint(Sketcher.Constraint("Equal", 11, 13))
sketch10.addConstraint(Sketcher.Constraint("Equal", 15, 0))
sketch10.addConstraint(Sketcher.Constraint("DistanceX", 1, 1, 1, 2, Q("2 mm")))
sketch10.addConstraint(Sketcher.Constraint("DistanceX", 1, 2, 4, 2, Q("1 mm")))
sketch10.addConstraint(Sketcher.Constraint("DistanceX", 5, 2, 8, 2, Q("4 mm")))
sketch10.addConstraint(Sketcher.Constraint("DistanceX", 5, 2, 12, 2, Q("1 mm")))
sketch10.addConstraint(Sketcher.Constraint("DistanceX", 0, 2, -1, 1, Q("5.467318 mm")))
sketch10.addConstraint(Sketcher.Constraint("DistanceY", -1, 1, 0, 2, Q("13.415113 mm")))
pad8 = doc.addObject("PartDesign::Pad", "Pad007")
body.addObject(pad8)
pad8.Profile = sketch10
pad8.Length = 2.5

# Sketch on XZ plane
sketch11 = doc.addObject("Sketcher::SketchObject", "Sketch010")
body.addObject(sketch11)
sketch11.AttachmentSupport = (doc.XZ_Plane, [""])
sketch11.MapMode = "FlatFace"
sketch11.AttachmentOffset = App.Placement(V(0, 0, -5.2), App.Rotation())
sketch11.addGeometry(Part.LineSegment(V(-4.95, 11.42, 0), V(-4.95, 11.83, 0)), False)
sketch11.addGeometry(Part.LineSegment(V(-4.95, 11.83, 0), V(5.02, 11.83, 0)), False)
sketch11.addGeometry(Part.LineSegment(V(5.02, 11.83, 0), V(5.02, 11.42, 0)), False)
sketch11.addGeometry(Part.LineSegment(V(5.02, 11.42, 0), V(-4.95, 11.42, 0)), False)
sketch11.addConstraint(Sketcher.Constraint("Coincident", 0, 2, 1, 1))
sketch11.addConstraint(Sketcher.Constraint("Coincident", 1, 2, 2, 1))
sketch11.addConstraint(Sketcher.Constraint("Coincident", 2, 2, 3, 1))
sketch11.addConstraint(Sketcher.Constraint("Coincident", 3, 2, 0, 1))
sketch11.addConstraint(Sketcher.Constraint("Vertical", 0))
sketch11.addConstraint(Sketcher.Constraint("Horizontal", 1))
sketch11.addConstraint(Sketcher.Constraint("Vertical", 2))
sketch11.addConstraint(Sketcher.Constraint("Horizontal", 3))
sketch11.addConstraint(Sketcher.Constraint("DistanceX", 1, 1, 1, 2, Q("9.968389 mm")))
sketch11.addConstraint(Sketcher.Constraint("DistanceY", 0, 1, 0, 2, Q("0.413346 mm")))
sketch11.addConstraint(Sketcher.Constraint("DistanceY", -1, 1, 0, 2, Q("11.828459 mm")))
sketch11.addConstraint(Sketcher.Constraint("DistanceX", 0, 2, -1, 1, Q("4.951512 mm")))
pocket2 = doc.addObject("PartDesign::Pocket", "Pocket001")
body.addObject(pocket2)
pocket2.Profile = sketch11
pocket2.Length = 1.5
pocket2.Reversed = True

doc.recompute()
